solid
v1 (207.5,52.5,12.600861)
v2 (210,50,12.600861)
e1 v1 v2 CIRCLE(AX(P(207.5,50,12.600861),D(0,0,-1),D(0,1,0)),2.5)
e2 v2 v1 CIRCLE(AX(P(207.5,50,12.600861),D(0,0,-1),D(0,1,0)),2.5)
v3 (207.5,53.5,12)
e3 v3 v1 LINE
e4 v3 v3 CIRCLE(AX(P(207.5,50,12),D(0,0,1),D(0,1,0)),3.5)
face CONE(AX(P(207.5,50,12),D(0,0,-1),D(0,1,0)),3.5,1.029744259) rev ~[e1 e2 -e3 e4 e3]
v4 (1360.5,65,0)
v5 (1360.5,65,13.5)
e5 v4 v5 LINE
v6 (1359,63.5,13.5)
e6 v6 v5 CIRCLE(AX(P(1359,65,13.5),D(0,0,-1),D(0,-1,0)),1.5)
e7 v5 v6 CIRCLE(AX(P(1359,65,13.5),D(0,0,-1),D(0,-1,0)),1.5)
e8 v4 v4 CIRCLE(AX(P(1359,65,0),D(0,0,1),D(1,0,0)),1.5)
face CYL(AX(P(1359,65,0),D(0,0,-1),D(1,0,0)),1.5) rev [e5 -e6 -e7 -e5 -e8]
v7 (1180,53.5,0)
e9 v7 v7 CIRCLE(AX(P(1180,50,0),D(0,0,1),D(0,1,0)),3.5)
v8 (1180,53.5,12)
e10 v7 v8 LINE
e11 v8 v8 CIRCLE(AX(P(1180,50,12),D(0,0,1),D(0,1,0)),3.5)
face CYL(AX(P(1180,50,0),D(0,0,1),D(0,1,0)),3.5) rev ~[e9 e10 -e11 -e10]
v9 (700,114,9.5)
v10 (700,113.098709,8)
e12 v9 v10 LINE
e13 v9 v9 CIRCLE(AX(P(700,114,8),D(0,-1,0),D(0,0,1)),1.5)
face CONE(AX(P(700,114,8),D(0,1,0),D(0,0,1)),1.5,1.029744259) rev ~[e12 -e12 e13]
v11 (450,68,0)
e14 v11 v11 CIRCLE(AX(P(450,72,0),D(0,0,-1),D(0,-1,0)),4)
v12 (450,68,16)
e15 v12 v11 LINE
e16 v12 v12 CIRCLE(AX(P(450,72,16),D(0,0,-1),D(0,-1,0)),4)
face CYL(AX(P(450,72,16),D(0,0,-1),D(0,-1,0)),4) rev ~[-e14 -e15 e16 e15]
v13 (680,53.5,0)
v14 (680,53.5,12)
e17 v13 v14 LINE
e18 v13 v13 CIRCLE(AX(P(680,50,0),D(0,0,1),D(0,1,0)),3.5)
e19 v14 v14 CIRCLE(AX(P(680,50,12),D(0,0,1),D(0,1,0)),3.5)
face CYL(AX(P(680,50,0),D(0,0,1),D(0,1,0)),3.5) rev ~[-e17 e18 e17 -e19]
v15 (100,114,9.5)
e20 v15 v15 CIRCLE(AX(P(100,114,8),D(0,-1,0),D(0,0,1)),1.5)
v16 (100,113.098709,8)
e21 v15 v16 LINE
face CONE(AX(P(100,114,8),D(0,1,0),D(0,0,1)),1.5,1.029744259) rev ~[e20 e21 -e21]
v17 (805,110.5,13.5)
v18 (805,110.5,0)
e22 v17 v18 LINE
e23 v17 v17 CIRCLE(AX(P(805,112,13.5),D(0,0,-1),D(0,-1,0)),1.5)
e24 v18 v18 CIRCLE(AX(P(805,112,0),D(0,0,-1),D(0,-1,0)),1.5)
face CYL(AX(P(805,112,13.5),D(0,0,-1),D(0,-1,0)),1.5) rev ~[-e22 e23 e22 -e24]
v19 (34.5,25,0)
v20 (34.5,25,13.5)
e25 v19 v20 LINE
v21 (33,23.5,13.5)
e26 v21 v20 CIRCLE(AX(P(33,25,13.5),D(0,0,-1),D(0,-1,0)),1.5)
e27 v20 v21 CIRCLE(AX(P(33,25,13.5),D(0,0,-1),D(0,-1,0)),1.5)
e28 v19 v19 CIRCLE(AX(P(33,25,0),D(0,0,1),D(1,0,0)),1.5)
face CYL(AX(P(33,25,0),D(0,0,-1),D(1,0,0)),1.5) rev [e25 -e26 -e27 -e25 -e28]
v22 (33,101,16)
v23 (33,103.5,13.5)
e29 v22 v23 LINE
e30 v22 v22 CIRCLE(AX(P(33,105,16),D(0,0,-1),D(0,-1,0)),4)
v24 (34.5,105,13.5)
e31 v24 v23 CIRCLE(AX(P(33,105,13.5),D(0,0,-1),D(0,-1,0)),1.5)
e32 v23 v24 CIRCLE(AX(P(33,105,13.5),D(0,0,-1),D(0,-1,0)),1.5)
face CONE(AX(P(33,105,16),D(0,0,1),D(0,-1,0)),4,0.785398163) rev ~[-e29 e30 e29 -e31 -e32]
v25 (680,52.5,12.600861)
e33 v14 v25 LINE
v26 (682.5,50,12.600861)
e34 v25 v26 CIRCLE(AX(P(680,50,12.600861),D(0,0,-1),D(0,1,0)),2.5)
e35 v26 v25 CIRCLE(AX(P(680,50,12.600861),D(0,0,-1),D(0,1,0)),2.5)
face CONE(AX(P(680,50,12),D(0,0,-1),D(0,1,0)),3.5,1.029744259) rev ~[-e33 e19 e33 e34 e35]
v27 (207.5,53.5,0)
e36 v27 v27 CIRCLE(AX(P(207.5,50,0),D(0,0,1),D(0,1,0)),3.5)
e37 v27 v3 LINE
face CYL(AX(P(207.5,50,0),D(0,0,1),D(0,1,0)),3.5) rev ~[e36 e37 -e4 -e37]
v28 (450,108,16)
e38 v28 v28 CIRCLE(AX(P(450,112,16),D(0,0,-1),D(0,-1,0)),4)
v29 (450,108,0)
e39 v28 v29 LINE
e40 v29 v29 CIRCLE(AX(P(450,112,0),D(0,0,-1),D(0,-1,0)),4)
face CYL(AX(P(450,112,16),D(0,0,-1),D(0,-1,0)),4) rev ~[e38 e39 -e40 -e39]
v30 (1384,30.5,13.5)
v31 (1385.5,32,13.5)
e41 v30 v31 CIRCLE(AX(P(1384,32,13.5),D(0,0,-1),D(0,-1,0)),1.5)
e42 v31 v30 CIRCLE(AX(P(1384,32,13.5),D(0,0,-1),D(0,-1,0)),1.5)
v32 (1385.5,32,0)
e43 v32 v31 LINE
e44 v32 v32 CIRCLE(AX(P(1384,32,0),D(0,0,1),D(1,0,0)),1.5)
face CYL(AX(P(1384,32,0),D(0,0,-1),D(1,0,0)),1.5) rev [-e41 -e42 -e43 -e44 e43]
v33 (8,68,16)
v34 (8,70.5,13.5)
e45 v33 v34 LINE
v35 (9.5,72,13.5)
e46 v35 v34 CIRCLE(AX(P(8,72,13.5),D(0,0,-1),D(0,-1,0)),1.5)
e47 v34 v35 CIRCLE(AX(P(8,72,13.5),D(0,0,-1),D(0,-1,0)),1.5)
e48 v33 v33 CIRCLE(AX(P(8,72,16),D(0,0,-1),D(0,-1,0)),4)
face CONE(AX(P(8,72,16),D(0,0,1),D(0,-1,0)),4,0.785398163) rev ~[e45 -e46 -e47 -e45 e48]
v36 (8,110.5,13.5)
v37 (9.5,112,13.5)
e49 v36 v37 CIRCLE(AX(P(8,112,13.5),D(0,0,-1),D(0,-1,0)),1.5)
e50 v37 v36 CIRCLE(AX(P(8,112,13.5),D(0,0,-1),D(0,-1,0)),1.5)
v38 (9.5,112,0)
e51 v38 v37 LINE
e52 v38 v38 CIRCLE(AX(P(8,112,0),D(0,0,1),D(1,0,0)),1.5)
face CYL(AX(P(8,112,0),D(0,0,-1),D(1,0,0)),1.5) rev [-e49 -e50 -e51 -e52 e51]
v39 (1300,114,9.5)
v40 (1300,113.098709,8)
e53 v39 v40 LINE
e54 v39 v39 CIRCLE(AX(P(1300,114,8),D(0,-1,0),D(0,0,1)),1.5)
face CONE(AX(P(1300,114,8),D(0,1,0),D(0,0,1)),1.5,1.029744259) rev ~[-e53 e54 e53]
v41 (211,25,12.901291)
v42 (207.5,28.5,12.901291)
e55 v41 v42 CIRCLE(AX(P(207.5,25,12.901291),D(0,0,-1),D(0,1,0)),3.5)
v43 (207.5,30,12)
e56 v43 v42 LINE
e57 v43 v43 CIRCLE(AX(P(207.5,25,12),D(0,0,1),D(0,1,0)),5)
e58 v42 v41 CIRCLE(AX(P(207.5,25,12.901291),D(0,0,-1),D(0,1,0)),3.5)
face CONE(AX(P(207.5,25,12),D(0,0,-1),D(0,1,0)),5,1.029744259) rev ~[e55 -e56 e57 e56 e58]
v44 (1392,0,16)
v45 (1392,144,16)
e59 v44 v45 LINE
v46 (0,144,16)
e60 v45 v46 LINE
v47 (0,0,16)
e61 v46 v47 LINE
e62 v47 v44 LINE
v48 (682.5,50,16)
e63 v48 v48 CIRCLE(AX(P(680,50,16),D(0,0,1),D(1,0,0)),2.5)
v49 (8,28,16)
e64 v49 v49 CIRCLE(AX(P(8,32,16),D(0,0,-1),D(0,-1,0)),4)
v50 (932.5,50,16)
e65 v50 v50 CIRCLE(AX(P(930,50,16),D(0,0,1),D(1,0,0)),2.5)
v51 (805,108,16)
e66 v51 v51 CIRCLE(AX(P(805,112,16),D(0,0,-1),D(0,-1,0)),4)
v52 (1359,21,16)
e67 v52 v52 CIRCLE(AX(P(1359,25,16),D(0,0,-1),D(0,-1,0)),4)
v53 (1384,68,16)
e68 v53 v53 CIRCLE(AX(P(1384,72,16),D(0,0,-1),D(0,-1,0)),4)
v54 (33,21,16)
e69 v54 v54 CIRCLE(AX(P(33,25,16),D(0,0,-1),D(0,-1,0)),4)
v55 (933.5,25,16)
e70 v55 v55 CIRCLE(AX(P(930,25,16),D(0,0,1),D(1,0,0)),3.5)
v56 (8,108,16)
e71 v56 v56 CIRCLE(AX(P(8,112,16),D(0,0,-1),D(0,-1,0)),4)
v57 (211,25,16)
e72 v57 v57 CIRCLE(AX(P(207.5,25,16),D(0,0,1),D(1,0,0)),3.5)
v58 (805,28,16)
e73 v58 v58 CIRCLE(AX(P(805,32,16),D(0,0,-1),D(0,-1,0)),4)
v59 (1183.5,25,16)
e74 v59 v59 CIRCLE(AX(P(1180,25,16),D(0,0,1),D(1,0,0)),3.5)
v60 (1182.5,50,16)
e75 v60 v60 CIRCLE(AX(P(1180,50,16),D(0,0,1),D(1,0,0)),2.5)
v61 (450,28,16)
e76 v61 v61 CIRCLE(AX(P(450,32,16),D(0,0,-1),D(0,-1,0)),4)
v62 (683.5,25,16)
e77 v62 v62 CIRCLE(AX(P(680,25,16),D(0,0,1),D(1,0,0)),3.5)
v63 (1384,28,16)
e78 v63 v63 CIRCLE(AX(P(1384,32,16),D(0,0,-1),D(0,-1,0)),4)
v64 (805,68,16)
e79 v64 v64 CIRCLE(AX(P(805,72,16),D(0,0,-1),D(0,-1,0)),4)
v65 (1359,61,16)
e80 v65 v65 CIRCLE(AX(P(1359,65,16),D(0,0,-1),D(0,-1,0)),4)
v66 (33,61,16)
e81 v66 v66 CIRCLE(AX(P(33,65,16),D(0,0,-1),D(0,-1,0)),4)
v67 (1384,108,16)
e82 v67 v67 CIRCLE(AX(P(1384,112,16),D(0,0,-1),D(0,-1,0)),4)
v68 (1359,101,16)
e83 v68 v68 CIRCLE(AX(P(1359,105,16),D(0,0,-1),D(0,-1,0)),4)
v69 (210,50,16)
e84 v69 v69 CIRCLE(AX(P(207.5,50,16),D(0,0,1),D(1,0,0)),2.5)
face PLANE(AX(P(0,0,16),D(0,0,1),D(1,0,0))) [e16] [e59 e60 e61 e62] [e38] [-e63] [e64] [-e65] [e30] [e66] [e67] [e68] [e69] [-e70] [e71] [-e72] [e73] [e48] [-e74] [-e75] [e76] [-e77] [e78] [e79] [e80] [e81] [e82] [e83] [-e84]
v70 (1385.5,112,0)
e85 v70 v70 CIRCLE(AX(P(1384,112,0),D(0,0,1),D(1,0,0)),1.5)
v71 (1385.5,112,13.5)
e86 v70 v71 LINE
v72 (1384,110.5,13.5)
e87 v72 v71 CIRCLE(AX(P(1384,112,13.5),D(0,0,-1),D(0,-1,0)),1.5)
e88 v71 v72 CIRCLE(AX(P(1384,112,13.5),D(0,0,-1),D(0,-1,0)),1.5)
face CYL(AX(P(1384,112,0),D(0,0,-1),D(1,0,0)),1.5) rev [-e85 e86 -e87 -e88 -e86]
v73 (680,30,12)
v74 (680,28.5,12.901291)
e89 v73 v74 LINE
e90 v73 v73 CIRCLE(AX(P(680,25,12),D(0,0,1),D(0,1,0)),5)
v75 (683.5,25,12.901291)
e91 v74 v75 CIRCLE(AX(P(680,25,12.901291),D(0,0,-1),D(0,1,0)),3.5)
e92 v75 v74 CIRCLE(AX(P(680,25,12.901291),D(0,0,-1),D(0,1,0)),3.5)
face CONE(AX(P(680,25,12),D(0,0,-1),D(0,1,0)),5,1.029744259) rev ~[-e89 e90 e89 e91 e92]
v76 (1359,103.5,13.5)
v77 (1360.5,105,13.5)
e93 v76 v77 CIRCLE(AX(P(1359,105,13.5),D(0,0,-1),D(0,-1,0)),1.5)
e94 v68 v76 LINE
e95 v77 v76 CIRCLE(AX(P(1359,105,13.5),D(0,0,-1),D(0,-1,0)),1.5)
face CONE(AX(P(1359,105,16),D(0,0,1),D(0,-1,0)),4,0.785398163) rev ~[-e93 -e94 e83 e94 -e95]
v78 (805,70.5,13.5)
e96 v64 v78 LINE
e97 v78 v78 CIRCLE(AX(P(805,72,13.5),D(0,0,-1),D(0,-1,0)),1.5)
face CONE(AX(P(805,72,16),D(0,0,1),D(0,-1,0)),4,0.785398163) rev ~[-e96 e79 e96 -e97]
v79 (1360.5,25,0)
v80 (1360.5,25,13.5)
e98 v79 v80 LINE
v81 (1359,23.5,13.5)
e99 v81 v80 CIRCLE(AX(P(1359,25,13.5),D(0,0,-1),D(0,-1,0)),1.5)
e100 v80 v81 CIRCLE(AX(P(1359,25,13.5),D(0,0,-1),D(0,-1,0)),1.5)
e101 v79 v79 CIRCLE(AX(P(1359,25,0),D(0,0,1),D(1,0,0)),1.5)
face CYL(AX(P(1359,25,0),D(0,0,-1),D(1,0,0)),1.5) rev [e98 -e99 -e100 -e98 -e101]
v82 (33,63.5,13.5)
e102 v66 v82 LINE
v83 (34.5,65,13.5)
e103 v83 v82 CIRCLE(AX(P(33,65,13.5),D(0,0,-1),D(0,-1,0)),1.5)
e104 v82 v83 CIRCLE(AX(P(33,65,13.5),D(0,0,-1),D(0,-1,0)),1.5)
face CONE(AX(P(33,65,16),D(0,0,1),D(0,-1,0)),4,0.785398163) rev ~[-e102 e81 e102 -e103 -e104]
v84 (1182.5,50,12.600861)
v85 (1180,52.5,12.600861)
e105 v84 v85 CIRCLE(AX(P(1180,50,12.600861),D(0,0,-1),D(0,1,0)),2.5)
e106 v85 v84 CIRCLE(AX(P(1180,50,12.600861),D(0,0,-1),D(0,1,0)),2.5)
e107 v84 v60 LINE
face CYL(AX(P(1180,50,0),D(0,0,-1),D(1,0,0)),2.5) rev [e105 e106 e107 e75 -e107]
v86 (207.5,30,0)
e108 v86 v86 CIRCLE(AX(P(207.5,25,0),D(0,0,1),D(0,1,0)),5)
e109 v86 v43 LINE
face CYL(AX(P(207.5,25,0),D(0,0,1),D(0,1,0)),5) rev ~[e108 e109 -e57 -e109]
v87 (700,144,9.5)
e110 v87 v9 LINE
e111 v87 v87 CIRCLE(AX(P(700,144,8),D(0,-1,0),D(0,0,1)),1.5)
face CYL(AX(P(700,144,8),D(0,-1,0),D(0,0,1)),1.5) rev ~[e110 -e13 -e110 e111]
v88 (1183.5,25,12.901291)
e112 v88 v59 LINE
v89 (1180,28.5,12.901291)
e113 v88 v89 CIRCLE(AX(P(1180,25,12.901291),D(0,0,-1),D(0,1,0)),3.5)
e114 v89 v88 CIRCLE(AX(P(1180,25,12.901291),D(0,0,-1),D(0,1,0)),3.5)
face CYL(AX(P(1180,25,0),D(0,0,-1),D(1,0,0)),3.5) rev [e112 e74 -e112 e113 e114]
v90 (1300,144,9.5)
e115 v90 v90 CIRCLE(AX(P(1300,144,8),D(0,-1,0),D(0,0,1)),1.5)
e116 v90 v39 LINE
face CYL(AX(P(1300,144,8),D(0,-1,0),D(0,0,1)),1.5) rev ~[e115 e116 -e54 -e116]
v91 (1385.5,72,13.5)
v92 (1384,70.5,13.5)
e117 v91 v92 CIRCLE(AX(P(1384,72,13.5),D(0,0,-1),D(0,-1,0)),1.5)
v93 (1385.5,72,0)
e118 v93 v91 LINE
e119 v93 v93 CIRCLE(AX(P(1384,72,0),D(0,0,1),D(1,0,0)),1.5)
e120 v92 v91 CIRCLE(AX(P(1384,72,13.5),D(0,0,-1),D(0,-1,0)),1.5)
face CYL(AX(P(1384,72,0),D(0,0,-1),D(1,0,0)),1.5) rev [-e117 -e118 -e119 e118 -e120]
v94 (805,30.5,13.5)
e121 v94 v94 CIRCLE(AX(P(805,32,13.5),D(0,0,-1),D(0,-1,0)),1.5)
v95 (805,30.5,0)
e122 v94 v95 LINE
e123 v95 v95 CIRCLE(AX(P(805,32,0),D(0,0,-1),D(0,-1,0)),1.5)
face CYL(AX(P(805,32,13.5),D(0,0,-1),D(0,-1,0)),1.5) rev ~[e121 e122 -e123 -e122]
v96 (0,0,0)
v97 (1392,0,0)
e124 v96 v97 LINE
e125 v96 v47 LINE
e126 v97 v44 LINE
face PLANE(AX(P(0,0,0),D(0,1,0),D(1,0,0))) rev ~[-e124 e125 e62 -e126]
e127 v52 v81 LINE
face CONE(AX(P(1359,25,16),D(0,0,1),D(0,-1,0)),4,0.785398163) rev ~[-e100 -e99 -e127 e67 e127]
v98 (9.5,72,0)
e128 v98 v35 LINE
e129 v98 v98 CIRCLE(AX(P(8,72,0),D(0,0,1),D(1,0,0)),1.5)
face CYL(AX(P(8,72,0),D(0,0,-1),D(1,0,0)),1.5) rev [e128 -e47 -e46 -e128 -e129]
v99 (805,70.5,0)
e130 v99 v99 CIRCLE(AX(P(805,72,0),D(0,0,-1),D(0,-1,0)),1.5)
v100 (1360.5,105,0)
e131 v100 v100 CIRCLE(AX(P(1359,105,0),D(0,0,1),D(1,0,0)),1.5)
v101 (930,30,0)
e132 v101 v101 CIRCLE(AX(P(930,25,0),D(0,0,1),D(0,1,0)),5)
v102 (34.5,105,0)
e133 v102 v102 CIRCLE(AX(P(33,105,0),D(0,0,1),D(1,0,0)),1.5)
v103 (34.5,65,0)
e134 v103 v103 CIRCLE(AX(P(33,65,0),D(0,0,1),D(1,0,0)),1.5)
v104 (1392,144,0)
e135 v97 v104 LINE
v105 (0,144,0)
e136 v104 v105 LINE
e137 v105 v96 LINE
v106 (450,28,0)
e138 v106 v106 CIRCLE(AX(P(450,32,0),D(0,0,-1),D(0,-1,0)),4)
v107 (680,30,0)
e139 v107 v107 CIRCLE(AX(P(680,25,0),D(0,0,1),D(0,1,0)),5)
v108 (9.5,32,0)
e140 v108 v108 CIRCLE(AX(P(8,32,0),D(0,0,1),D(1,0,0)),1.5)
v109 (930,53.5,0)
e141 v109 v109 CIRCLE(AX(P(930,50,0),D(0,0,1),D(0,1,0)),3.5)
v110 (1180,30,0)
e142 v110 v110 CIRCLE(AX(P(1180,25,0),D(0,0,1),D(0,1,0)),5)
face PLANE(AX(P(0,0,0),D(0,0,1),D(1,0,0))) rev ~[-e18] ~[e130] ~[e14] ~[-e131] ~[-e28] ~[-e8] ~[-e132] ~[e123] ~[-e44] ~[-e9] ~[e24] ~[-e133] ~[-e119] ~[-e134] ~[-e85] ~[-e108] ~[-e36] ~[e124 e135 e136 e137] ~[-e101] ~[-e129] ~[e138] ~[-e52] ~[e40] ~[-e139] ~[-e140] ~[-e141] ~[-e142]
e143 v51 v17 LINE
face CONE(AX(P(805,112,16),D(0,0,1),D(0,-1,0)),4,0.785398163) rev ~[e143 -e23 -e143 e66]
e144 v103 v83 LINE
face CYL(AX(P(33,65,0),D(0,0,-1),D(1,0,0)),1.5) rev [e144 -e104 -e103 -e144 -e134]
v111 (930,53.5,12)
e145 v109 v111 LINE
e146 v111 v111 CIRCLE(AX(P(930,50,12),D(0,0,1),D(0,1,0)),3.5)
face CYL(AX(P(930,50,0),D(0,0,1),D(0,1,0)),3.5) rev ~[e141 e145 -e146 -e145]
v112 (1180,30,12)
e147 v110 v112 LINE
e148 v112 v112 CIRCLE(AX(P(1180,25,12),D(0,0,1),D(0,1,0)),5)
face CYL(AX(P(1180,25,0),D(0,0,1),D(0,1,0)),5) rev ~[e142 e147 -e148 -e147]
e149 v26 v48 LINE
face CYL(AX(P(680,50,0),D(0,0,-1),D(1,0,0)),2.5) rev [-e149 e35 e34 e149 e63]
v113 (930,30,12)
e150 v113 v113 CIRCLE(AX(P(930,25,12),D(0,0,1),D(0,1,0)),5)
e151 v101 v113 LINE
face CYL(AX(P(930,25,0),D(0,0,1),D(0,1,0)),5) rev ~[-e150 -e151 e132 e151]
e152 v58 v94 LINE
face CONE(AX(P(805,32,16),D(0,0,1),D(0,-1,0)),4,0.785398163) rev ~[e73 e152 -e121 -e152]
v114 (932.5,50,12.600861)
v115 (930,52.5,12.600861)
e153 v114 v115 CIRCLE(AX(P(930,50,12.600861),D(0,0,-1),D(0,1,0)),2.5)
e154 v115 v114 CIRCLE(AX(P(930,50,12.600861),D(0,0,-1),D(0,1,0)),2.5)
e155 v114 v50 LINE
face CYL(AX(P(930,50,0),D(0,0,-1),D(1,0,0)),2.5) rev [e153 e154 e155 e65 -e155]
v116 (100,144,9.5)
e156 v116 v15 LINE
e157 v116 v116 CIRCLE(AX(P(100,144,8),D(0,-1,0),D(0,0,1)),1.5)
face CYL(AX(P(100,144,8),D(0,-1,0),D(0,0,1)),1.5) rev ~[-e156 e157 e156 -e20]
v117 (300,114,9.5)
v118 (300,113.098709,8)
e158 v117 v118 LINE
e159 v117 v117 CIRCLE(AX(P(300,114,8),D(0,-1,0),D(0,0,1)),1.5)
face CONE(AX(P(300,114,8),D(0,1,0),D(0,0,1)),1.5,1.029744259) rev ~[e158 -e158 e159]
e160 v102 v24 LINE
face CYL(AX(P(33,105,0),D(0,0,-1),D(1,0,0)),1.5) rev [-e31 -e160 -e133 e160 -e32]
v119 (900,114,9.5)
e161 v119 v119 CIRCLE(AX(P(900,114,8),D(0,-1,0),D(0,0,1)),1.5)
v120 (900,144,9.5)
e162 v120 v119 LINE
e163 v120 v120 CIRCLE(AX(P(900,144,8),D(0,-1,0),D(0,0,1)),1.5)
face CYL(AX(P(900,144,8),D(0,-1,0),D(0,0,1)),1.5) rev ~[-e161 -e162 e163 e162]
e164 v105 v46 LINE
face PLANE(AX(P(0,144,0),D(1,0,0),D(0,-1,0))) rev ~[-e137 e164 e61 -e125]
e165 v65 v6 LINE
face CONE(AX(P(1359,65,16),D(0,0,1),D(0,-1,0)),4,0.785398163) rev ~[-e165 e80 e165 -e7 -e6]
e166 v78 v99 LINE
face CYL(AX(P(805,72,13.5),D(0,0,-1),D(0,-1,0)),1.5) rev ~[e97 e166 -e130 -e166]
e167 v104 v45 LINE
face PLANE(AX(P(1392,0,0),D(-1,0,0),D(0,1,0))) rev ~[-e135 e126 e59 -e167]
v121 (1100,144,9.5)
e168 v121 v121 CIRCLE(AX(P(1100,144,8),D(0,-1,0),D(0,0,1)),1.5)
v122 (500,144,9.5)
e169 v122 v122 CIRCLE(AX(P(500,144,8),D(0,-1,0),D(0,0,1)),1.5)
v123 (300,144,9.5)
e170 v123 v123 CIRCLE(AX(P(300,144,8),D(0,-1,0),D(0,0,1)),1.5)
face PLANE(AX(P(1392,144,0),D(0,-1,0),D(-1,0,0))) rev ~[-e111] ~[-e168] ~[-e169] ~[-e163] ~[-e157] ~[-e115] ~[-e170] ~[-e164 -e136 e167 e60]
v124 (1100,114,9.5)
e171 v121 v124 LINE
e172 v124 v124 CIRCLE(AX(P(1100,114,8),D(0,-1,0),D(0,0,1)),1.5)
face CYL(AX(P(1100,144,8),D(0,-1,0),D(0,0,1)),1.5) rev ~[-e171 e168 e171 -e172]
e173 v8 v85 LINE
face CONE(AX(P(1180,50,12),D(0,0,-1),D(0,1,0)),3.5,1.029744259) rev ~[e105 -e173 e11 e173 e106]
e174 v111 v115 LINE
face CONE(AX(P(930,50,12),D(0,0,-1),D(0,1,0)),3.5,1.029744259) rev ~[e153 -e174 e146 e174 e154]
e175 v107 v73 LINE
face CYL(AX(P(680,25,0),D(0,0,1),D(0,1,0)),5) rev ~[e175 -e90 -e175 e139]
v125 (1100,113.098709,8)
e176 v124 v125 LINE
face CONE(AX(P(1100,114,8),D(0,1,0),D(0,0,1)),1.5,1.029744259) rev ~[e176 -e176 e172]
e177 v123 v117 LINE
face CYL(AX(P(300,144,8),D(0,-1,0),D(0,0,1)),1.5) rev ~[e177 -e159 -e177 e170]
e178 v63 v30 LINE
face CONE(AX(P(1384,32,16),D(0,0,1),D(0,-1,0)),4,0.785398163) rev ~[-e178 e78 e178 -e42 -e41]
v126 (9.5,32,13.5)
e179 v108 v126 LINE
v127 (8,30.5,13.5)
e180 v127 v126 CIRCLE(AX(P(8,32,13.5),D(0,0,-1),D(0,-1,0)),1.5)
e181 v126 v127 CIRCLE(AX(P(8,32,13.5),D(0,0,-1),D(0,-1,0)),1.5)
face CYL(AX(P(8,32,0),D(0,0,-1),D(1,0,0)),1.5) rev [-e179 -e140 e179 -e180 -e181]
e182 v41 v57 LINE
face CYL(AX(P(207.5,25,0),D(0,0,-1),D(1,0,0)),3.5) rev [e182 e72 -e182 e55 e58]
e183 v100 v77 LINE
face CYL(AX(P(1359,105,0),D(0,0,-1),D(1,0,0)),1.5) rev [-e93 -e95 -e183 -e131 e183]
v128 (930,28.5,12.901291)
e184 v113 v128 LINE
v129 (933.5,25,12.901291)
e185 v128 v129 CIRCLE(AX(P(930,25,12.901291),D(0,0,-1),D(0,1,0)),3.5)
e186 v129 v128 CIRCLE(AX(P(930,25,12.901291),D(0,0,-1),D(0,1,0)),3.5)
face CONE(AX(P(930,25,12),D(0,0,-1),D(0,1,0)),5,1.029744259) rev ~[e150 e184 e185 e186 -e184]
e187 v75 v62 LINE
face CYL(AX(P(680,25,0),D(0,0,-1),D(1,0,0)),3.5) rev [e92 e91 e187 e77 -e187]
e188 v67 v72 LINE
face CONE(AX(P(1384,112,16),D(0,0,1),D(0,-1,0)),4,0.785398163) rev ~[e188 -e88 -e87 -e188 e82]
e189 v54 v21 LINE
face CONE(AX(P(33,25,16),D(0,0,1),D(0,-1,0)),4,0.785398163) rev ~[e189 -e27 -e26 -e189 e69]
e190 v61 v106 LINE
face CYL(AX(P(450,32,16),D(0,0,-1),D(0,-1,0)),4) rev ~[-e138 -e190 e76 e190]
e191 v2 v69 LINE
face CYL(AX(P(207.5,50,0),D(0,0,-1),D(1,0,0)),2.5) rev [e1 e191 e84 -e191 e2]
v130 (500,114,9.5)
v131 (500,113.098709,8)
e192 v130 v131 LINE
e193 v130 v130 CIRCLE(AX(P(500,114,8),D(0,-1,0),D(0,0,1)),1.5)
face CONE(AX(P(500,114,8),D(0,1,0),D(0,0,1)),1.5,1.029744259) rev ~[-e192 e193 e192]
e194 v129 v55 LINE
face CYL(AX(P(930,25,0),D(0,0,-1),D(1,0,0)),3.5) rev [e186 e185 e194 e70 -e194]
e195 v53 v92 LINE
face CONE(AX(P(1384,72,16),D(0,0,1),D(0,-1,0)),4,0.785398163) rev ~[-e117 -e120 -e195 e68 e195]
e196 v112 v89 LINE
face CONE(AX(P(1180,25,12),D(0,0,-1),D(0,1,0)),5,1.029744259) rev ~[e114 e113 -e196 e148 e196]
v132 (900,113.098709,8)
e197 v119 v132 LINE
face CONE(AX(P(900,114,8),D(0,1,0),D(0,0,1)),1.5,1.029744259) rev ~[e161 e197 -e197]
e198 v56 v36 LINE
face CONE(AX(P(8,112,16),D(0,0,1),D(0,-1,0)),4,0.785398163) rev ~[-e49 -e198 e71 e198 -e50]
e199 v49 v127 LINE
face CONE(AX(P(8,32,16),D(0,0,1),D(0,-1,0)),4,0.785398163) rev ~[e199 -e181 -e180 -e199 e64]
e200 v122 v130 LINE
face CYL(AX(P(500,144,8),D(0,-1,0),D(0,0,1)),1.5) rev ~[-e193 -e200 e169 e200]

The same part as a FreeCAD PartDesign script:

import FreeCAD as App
import Part
import Sketcher
Q = App.Units.Quantity


def add_polygon(sketch, points):
    """Adds a closed chain of lines whose ends are joined by coincident constraints."""
    first, n = sketch.GeometryCount, len(points)
    for a, b in zip(points, points[1:] + points[:1]):
        sketch.addGeometry(Part.LineSegment(App.Vector(*a, 0), App.Vector(*b, 0)), False)
    for i in range(n):
        sketch.addConstraint(Sketcher.Constraint("Coincident", first + i, 2, first + (i + 1) % n, 1))

doc = App.newDocument("Part")
body = doc.addObject("PartDesign::Body", "Body")

# Sketch on XY plane
sketch1 = doc.addObject("Sketcher::SketchObject", "Sketch")
body.addObject(sketch1)
sketch1.AttachmentSupport = (doc.XY_Plane, [""])
sketch1.MapMode = "FlatFace"
add_polygon(sketch1, [(0, 144), (0, 0), (1392, 0), (1392, 144)])  # lines 0-3
sketch1.addGeometry(Part.Circle(App.Vector(33, 25, 0), App.Vector(0, 0, 1), 1.5), False)  # 4
sketch1.addGeometry(Part.Circle(App.Vector(8, 32, 0), App.Vector(0, 0, 1), 1.5), False)  # 5
sketch1.addGeometry(Part.Circle(App.Vector(207.5, 25, 0), App.Vector(0, 0, 1), 3.5), False)  # 6
sketch1.addGeometry(Part.Circle(App.Vector(680, 25, 0), App.Vector(0, 0, 1), 3.5), False)  # 7
sketch1.addGeometry(Part.Circle(App.Vector(207.5, 50, 0), App.Vector(0, 0, 1), 2.5), False)  # 8
sketch1.addGeometry(Part.Circle(App.Vector(33, 65, 0), App.Vector(0, 0, 1), 1.5), False)  # 9
sketch1.addGeometry(Part.Circle(App.Vector(680, 50, 0), App.Vector(0, 0, 1), 2.5), False)  # 10
sketch1.addGeometry(Part.Circle(App.Vector(930, 25, 0), App.Vector(0, 0, 1), 3.5), False)  # 11
sketch1.addGeometry(Part.Circle(App.Vector(1180, 25, 0), App.Vector(0, 0, 1), 3.5), False)  # 12
sketch1.addGeometry(Part.Circle(App.Vector(1359, 25, 0), App.Vector(0, 0, 1), 1.5), False)  # 13
sketch1.addGeometry(Part.Circle(App.Vector(1384, 32, 0), App.Vector(0, 0, 1), 1.5), False)  # 14
sketch1.addGeometry(Part.Circle(App.Vector(930, 50, 0), App.Vector(0, 0, 1), 2.5), False)  # 15
sketch1.addGeometry(Part.Circle(App.Vector(1180, 50, 0), App.Vector(0, 0, 1), 2.5), False)  # 16
sketch1.addGeometry(Part.Circle(App.Vector(1359, 65, 0), App.Vector(0, 0, 1), 1.5), False)  # 17
sketch1.addGeometry(Part.Circle(App.Vector(8, 72, 0), App.Vector(0, 0, 1), 1.5), False)  # 18
sketch1.addGeometry(Part.Circle(App.Vector(33, 105, 0), App.Vector(0, 0, 1), 1.5), False)  # 19
sketch1.addGeometry(Part.Circle(App.Vector(8, 112, 0), App.Vector(0, 0, 1), 1.5), False)  # 20
sketch1.addGeometry(Part.Circle(App.Vector(1384, 72, 0), App.Vector(0, 0, 1), 1.5), False)  # 21
sketch1.addGeometry(Part.Circle(App.Vector(1359, 105, 0), App.Vector(0, 0, 1), 1.5), False)  # 22
sketch1.addGeometry(Part.Circle(App.Vector(1384, 112, 0), App.Vector(0, 0, 1), 1.5), False)  # 23
sketch1.addConstraint(Sketcher.Constraint("Vertical", 0))
sketch1.addConstraint(Sketcher.Constraint("Horizontal", 1))
sketch1.addConstraint(Sketcher.Constraint("Vertical", 2))
sketch1.addConstraint(Sketcher.Constraint("Horizontal", 3))
sketch1.addConstraint(Sketcher.Constraint("Coincident", 0, 2, -1, 1))
sketch1.addConstraint(Sketcher.Constraint("Equal", 4, 5))
sketch1.addConstraint(Sketcher.Constraint("Equal", 6, 7))
sketch1.addConstraint(Sketcher.Constraint("Equal", 5, 9))
sketch1.addConstraint(Sketcher.Constraint("Equal", 8, 10))
sketch1.addConstraint(Sketcher.Constraint("Equal", 7, 11))
sketch1.addConstraint(Sketcher.Constraint("Equal", 11, 12))
sketch1.addConstraint(Sketcher.Constraint("Equal", 9, 13))
sketch1.addConstraint(Sketcher.Constraint("Equal", 13, 14))
sketch1.addConstraint(Sketcher.Constraint("Equal", 10, 15))
sketch1.addConstraint(Sketcher.Constraint("Equal", 15, 16))
sketch1.addConstraint(Sketcher.Constraint("Equal", 14, 17))
sketch1.addConstraint(Sketcher.Constraint("Equal", 17, 18))
sketch1.addConstraint(Sketcher.Constraint("Equal", 18, 19))
sketch1.addConstraint(Sketcher.Constraint("Equal", 19, 20))
sketch1.addConstraint(Sketcher.Constraint("Equal", 20, 21))
sketch1.addConstraint(Sketcher.Constraint("Equal", 21, 22))
sketch1.addConstraint(Sketcher.Constraint("Equal", 22, 23))
sketch1.addConstraint(Sketcher.Constraint("Horizontal", 4, 3, 6, 3))
sketch1.addConstraint(Sketcher.Constraint("Horizontal", 6, 3, 7, 3))
sketch1.addConstraint(Sketcher.Constraint("Horizontal", 8, 3, 10, 3))
sketch1.addConstraint(Sketcher.Constraint("Horizontal", 7, 3, 11, 3))
sketch1.addConstraint(Sketcher.Constraint("Horizontal", 11, 3, 12, 3))
sketch1.addConstraint(Sketcher.Constraint("Horizontal", 12, 3, 13, 3))
sketch1.addConstraint(Sketcher.Constraint("Horizontal", 5, 3, 14, 3))
sketch1.addConstraint(Sketcher.Constraint("Horizontal", 10, 3, 15, 3))
sketch1.addConstraint(Sketcher.Constraint("Horizontal", 15, 3, 16, 3))
sketch1.addConstraint(Sketcher.Constraint("Horizontal", 9, 3, 17, 3))
sketch1.addConstraint(Sketcher.Constraint("Horizontal", 18, 3, 21, 3))
sketch1.addConstraint(Sketcher.Constraint("Horizontal", 19, 3, 22, 3))
sketch1.addConstraint(Sketcher.Constraint("Horizontal", 20, 3, 23, 3))
sketch1.addConstraint(Sketcher.Constraint("Vertical", 6, 3, 8, 3))
sketch1.addConstraint(Sketcher.Constraint("Vertical", 4, 3, 9, 3))
sketch1.addConstraint(Sketcher.Constraint("Vertical", 7, 3, 10, 3))
sketch1.addConstraint(Sketcher.Constraint("Vertical", 11, 3, 15, 3))
sketch1.addConstraint(Sketcher.Constraint("Vertical", 12, 3, 16, 3))
sketch1.addConstraint(Sketcher.Constraint("Vertical", 13, 3, 17, 3))
sketch1.addConstraint(Sketcher.Constraint("Vertical", 5, 3, 18, 3))
sketch1.addConstraint(Sketcher.Constraint("Vertical", 9, 3, 19, 3))
sketch1.addConstraint(Sketcher.Constraint("Vertical", 18, 3, 20, 3))
sketch1.addConstraint(Sketcher.Constraint("Vertical", 14, 3, 21, 3))
sketch1.addConstraint(Sketcher.Constraint("Vertical", 17, 3, 22, 3))
sketch1.addConstraint(Sketcher.Constraint("Vertical", 21, 3, 23, 3))
sketch1.addConstraint(Sketcher.Constraint("Diameter", 4, Q("3 mm")))
sketch1.addConstraint(Sketcher.Constraint("Diameter", 6, Q("7 mm")))
sketch1.addConstraint(Sketcher.Constraint("Diameter", 8, Q("5 mm")))
sketch1.addConstraint(Sketcher.Constraint("DistanceX", 1, 1, 1, 2, Q("1392 mm")))
sketch1.addConstraint(Sketcher.Constraint("DistanceY", 0, 2, 0, 1, Q("144 mm")))
sketch1.addConstraint(Sketcher.Constraint("DistanceX", -1, 1, 4, 3, Q("33 mm")))
sketch1.addConstraint(Sketcher.Constraint("DistanceY", -1, 1, 4, 3, Q("25 mm")))
sketch1.addConstraint(Sketcher.Constraint("DistanceX", -1, 1, 5, 3, Q("8 mm")))
sketch1.addConstraint(Sketcher.Constraint("DistanceX", -1, 1, 7, 3, Q("680 mm")))
sketch1.addConstraint(Sketcher.Constraint("DistanceY", -1, 1, 8, 3, Q("50 mm")))
sketch1.addConstraint(Sketcher.Constraint("DistanceY", 4, 3, 5, 3, Q("7 mm")))
sketch1.addConstraint(Sketcher.Constraint("DistanceY", 4, 3, 9, 3, Q("40 mm")))
sketch1.addConstraint(Sketcher.Constraint("DistanceX", 7, 3, 11, 3, Q("250 mm")))
sketch1.addConstraint(Sketcher.Constraint("DistanceX", 11, 3, 12, 3, Q("250 mm")))
sketch1.addConstraint(Sketcher.Constraint("DistanceX", 13, 3, 14, 3, Q("25 mm")))
sketch1.addConstraint(Sketcher.Constraint("DistanceY", 9, 3, 18, 3, Q("7 mm")))
sketch1.addConstraint(Sketcher.Constraint("DistanceY", 9, 3, 19, 3, Q("40 mm")))
sketch1.addConstraint(Sketcher.Constraint("DistanceY", 19, 3, 20, 3, Q("7 mm")))
sketch1.addConstraint(Sketcher.Constraint("DistanceX", 14, 3, 1, 2, Q("8 mm")))
sketch1.addConstraint(Sketcher.Constraint("DistanceX", -1, 1, 6, 3, Q("207.5 mm")))
pad1 = doc.addObject("PartDesign::Pad", "Pad")
body.addObject(pad1)
pad1.Profile = sketch1
pad1.Length = 16

# Sketch on XY plane
sketch2 = doc.addObject("Sketcher::SketchObject", "Sketch001")
body.addObject(sketch2)
sketch2.AttachmentSupport = (doc.XY_Plane, [""])
sketch2.MapMode = "FlatFace"
sketch2.addGeometry(Part.Circle(App.Vector(1180, 25, 0), App.Vector(0, 0, 1), 5), False)
sketch2.addGeometry(Part.Circle(App.Vector(930, 25, 0), App.Vector(0, 0, 1), 5), False)
sketch2.addGeometry(Part.Circle(App.Vector(680, 25, 0), App.Vector(0, 0, 1), 5), False)
sketch2.addGeometry(Part.Circle(App.Vector(208, 25, 0), App.Vector(0, 0, 1), 5), False)
sketch2.addConstraint(Sketcher.Constraint("Equal", 0, 1))
sketch2.addConstraint(Sketcher.Constraint("Equal", 1, 2))
sketch2.addConstraint(Sketcher.Constraint("Equal", 2, 3))
sketch2.addConstraint(Sketcher.Constraint("Horizontal", 0, 3, 1, 3))
sketch2.addConstraint(Sketcher.Constraint("Horizontal", 1, 3, 2, 3))
sketch2.addConstraint(Sketcher.Constraint("Horizontal", 2, 3, 3, 3))
sketch2.addConstraint(Sketcher.Constraint("Diameter", 0, Q("10 mm")))
sketch2.addConstraint(Sketcher.Constraint("DistanceX", -1, 1, 0, 3, Q("1180 mm")))
sketch2.addConstraint(Sketcher.Constraint("DistanceY", -1, 1, 0, 3, Q("25 mm")))
sketch2.addConstraint(Sketcher.Constraint("DistanceX", -1, 1, 1, 3, Q("930 mm")))
sketch2.addConstraint(Sketcher.Constraint("DistanceX", -1, 1, 2, 3, Q("680 mm")))
sketch2.addConstraint(Sketcher.Constraint("DistanceX", -1, 1, 3, 3, Q("207.5 mm")))
doc.recompute()
hole = doc.addObject("PartDesign::Hole", "Hole")
body.addObject(hole)
hole.Profile = sketch2
hole.ThreadType = "None"
hole.Diameter = 10
hole.DepthType = "Dimension"
hole.Depth = 12
hole.DrillPoint = "Angled"
hole.DrillPointAngle = 118
hole.Reversed = True

# Sketch on XY plane
sketch3 = doc.addObject("Sketcher::SketchObject", "Sketch002")
body.addObject(sketch3)
sketch3.AttachmentSupport = (doc.XY_Plane, [""])
sketch3.MapMode = "FlatFace"
sketch3.addGeometry(Part.Circle(App.Vector(930, 50, 0), App.Vector(0, 0, 1), 3.5), False)
sketch3.addGeometry(Part.Circle(App.Vector(680, 50, 0), App.Vector(0, 0, 1), 3.5), False)
sketch3.addGeometry(Part.Circle(App.Vector(207.5, 50, 0), App.Vector(0, 0, 1), 3.5), False)
sketch3.addGeometry(Part.Circle(App.Vector(1180, 50, 0), App.Vector(0, 0, 1), 3.5), False)
sketch3.addConstraint(Sketcher.Constraint("Equal", 0, 1))
sketch3.addConstraint(Sketcher.Constraint("Equal", 1, 2))
sketch3.addConstraint(Sketcher.Constraint("Equal", 2, 3))
sketch3.addConstraint(Sketcher.Constraint("Horizontal", 0, 3, 1, 3))
sketch3.addConstraint(Sketcher.Constraint("Horizontal", 1, 3, 2, 3))
sketch3.addConstraint(Sketcher.Constraint("Horizontal", 2, 3, 3, 3))
sketch3.addConstraint(Sketcher.Constraint("Diameter", 0, Q("7 mm")))
sketch3.addConstraint(Sketcher.Constraint("DistanceX", -1, 1, 0, 3, Q("930 mm")))
sketch3.addConstraint(Sketcher.Constraint("DistanceY", -1, 1, 0, 3, Q("50 mm")))
sketch3.addConstraint(Sketcher.Constraint("DistanceX", -1, 1, 1, 3, Q("680 mm")))
sketch3.addConstraint(Sketcher.Constraint("DistanceX", -1, 1, 3, 3, Q("1180 mm")))
sketch3.addConstraint(Sketcher.Constraint("DistanceX", -1, 1, 2, 3, Q("207.5 mm")))
doc.recompute()
hole2 = doc.addObject("PartDesign::Hole", "Hole001")
body.addObject(hole2)
hole2.Profile = sketch3
hole2.ThreadType = "None"
hole2.Diameter = 7
hole2.DepthType = "Dimension"
hole2.Depth = 12
hole2.DrillPoint = "Angled"
hole2.DrillPointAngle = 118
hole2.Reversed = True

# Sketch on XY plane
sketch4 = doc.addObject("Sketcher::SketchObject", "Sketch003")
body.addObject(sketch4)
sketch4.AttachmentSupport = (doc.XY_Plane, [""])
sketch4.MapMode = "FlatFace"
sketch4.AttachmentOffset = App.Placement(App.Vector(0, 0, 16), App.Rotation())
sketch4.addGeometry(Part.Circle(App.Vector(1359, 65, 0), App.Vector(0, 0, 1), 1.5), False)
sketch4.addGeometry(Part.Circle(App.Vector(1384, 32, 0), App.Vector(0, 0, 1), 1.5), False)
sketch4.addGeometry(Part.Circle(App.Vector(1384, 72, 0), App.Vector(0, 0, 1), 1.5), False)
sketch4.addGeometry(Part.Circle(App.Vector(1384, 112, 0), App.Vector(0, 0, 1), 1.5), False)
sketch4.addGeometry(Part.Circle(App.Vector(1359, 105, 0), App.Vector(0, 0, 1), 1.5), False)
sketch4.addGeometry(Part.Circle(App.Vector(1359, 25, 0), App.Vector(0, 0, 1), 1.5), False)
sketch4.addGeometry(Part.Circle(App.Vector(33, 65, 0), App.Vector(0, 0, 1), 1.5), False)
sketch4.addGeometry(Part.Circle(App.Vector(33, 25, 0), App.Vector(0, 0, 1), 1.5), False)
sketch4.addGeometry(Part.Circle(App.Vector(33, 105, 0), App.Vector(0, 0, 1), 1.5), False)
sketch4.addGeometry(Part.Circle(App.Vector(8, 72, 0), App.Vector(0, 0, 1), 1.5), False)
sketch4.addGeometry(Part.Circle(App.Vector(8, 112, 0), App.Vector(0, 0, 1), 1.5), False)
sketch4.addGeometry(Part.Circle(App.Vector(8, 32, 0), App.Vector(0, 0, 1), 1.5), False)
sketch4.addConstraint(Sketcher.Constraint("Equal", 0, 1))
sketch4.addConstraint(Sketcher.Constraint("Equal", 1, 2))
sketch4.addConstraint(Sketcher.Constraint("Equal", 2, 3))
sketch4.addConstraint(Sketcher.Constraint("Equal", 3, 4))
sketch4.addConstraint(Sketcher.Constraint("Equal", 4, 5))
sketch4.addConstraint(Sketcher.Constraint("Equal", 5, 6))
sketch4.addConstraint(Sketcher.Constraint("Equal", 6, 7))
sketch4.addConstraint(Sketcher.Constraint("Equal", 7, 8))
sketch4.addConstraint(Sketcher.Constraint("Equal", 8, 9))
sketch4.addConstraint(Sketcher.Constraint("Equal", 9, 10))
sketch4.addConstraint(Sketcher.Constraint("Equal", 10, 11))
sketch4.addConstraint(Sketcher.Constraint("Horizontal", 0, 3, 6, 3))
sketch4.addConstraint(Sketcher.Constraint("Horizontal", 5, 3, 7, 3))
sketch4.addConstraint(Sketcher.Constraint("Horizontal", 4, 3, 8, 3))
sketch4.addConstraint(Sketcher.Constraint("Horizontal", 2, 3, 9, 3))
sketch4.addConstraint(Sketcher.Constraint("Horizontal", 3, 3, 10, 3))
sketch4.addConstraint(Sketcher.Constraint("Horizontal", 1, 3, 11, 3))
sketch4.addConstraint(Sketcher.Constraint("Vertical", 1, 3, 2, 3))
sketch4.addConstraint(Sketcher.Constraint("Vertical", 2, 3, 3, 3))
sketch4.addConstraint(Sketcher.Constraint("Vertical", 0, 3, 4, 3))
sketch4.addConstraint(Sketcher.Constraint("Vertical", 4, 3, 5, 3))
sketch4.addConstraint(Sketcher.Constraint("Vertical", 6, 3, 7, 3))
sketch4.addConstraint(Sketcher.Constraint("Vertical", 7, 3, 8, 3))
sketch4.addConstraint(Sketcher.Constraint("Vertical", 9, 3, 10, 3))
sketch4.addConstraint(Sketcher.Constraint("Vertical", 10, 3, 11, 3))
sketch4.addConstraint(Sketcher.Constraint("Diameter", 0, Q("3 mm")))
sketch4.addConstraint(Sketcher.Constraint("DistanceX", -1, 1, 0, 3, Q("1359 mm")))
sketch4.addConstraint(Sketcher.Constraint("DistanceY", -1, 1, 0, 3, Q("65 mm")))
sketch4.addConstraint(Sketcher.Constraint("DistanceX", -1, 1, 1, 3, Q("1384 mm")))
sketch4.addConstraint(Sketcher.Constraint("DistanceY", -1, 1, 1, 3, Q("32 mm")))
sketch4.addConstraint(Sketcher.Constraint("DistanceY", -1, 1, 2, 3, Q("72 mm")))
sketch4.addConstraint(Sketcher.Constraint("DistanceY", -1, 1, 3, 3, Q("112 mm")))
sketch4.addConstraint(Sketcher.Constraint("DistanceY", -1, 1, 4, 3, Q("105 mm")))
sketch4.addConstraint(Sketcher.Constraint("DistanceY", -1, 1, 5, 3, Q("25 mm")))
sketch4.addConstraint(Sketcher.Constraint("DistanceX", -1, 1, 6, 3, Q("33 mm")))
sketch4.addConstraint(Sketcher.Constraint("DistanceX", -1, 1, 9, 3, Q("8 mm")))
doc.recompute()
hole3 = doc.addObject("PartDesign::Hole", "Hole002")
body.addObject(hole3)
hole3.Profile = sketch4
hole3.ThreadType = "None"
hole3.Diameter = 3
hole3.DepthType = "Dimension"
hole3.Depth = 8
hole3.DrillPoint = "Angled"
hole3.DrillPointAngle = 118
hole3.HoleCutType = "Countersink"
hole3.HoleCutDiameter = 8
hole3.HoleCutCountersinkAngle = 90

# Sketch on XZ plane
sketch5 = doc.addObject("Sketcher::SketchObject", "Sketch004")
body.addObject(sketch5)
sketch5.AttachmentSupport = (doc.XZ_Plane, [""])
sketch5.MapMode = "FlatFace"
sketch5.AttachmentOffset = App.Placement(App.Vector(0, 0, -144), App.Rotation())
sketch5.addGeometry(Part.Circle(App.Vector(1300, 8, 0), App.Vector(0, 0, 1), 1.5), False)
sketch5.addGeometry(Part.Circle(App.Vector(1100, 8, 0), App.Vector(0, 0, 1), 1.5), False)
sketch5.addGeometry(Part.Circle(App.Vector(900, 8, 0), App.Vector(0, 0, 1), 1.5), False)
sketch5.addGeometry(Part.Circle(App.Vector(500, 8, 0), App.Vector(0, 0, 1), 1.5), False)
sketch5.addGeometry(Part.Circle(App.Vector(300, 8, 0), App.Vector(0, 0, 1), 1.5), False)
sketch5.addGeometry(Part.Circle(App.Vector(100, 8, 0), App.Vector(0, 0, 1), 1.5), False)
sketch5.addGeometry(Part.Circle(App.Vector(700, 8, 0), App.Vector(0, 0, 1), 1.5), False)
sketch5.addConstraint(Sketcher.Constraint("Equal", 0, 1))
sketch5.addConstraint(Sketcher.Constraint("Equal", 1, 2))
sketch5.addConstraint(Sketcher.Constraint("Equal", 2, 3))
sketch5.addConstraint(Sketcher.Constraint("Equal", 3, 4))
sketch5.addConstraint(Sketcher.Constraint("Equal", 4, 5))
sketch5.addConstraint(Sketcher.Constraint("Equal", 5, 6))
sketch5.addConstraint(Sketcher.Constraint("Horizontal", 0, 3, 1, 3))
sketch5.addConstraint(Sketcher.Constraint("Horizontal", 1, 3, 2, 3))
sketch5.addConstraint(Sketcher.Constraint("Horizontal", 2, 3, 3, 3))
sketch5.addConstraint(Sketcher.Constraint("Horizontal", 3, 3, 4, 3))
sketch5.addConstraint(Sketcher.Constraint("Horizontal", 4, 3, 5, 3))
sketch5.addConstraint(Sketcher.Constraint("Horizontal", 5, 3, 6, 3))
sketch5.addConstraint(Sketcher.Constraint("Diameter", 0, Q("3 mm")))
sketch5.addConstraint(Sketcher.Constraint("DistanceX", -1, 1, 0, 3, Q("1300 mm")))
sketch5.addConstraint(Sketcher.Constraint("DistanceY", -1, 1, 0, 3, Q("8 mm")))
sketch5.addConstraint(Sketcher.Constraint("DistanceX", -1, 1, 1, 3, Q("1100 mm")))
sketch5.addConstraint(Sketcher.Constraint("DistanceX", -1, 1, 2, 3, Q("900 mm")))
sketch5.addConstraint(Sketcher.Constraint("DistanceX", -1, 1, 3, 3, Q("500 mm")))
sketch5.addConstraint(Sketcher.Constraint("DistanceX", -1, 1, 4, 3, Q("300 mm")))
sketch5.addConstraint(Sketcher.Constraint("DistanceX", -1, 1, 5, 3, Q("100 mm")))
sketch5.addConstraint(Sketcher.Constraint("DistanceX", -1, 1, 6, 3, Q("700 mm")))
doc.recompute()
hole4 = doc.addObject("PartDesign::Hole", "Hole003")
body.addObject(hole4)
hole4.Profile = sketch5
hole4.ThreadType = "None"
hole4.Diameter = 3
hole4.DepthType = "Dimension"
hole4.Depth = 30
hole4.DrillPoint = "Angled"
hole4.DrillPointAngle = 118
hole4.Reversed = True

# Sketch on XY plane
sketch6 = doc.addObject("Sketcher::SketchObject", "Sketch005")
body.addObject(sketch6)
sketch6.AttachmentSupport = (doc.XY_Plane, [""])
sketch6.MapMode = "FlatFace"
sketch6.AttachmentOffset = App.Placement(App.Vector(0, 0, 16), App.Rotation())
sketch6.addGeometry(Part.Circle(App.Vector(805, 32, 0), App.Vector(0, 0, 1), 1.5), False)
sketch6.addGeometry(Part.Circle(App.Vector(805, 72, 0), App.Vector(0, 0, 1), 1.5), False)
sketch6.addGeometry(Part.Circle(App.Vector(805, 112, 0), App.Vector(0, 0, 1), 1.5), False)
sketch6.addConstraint(Sketcher.Constraint("Equal", 0, 1))
sketch6.addConstraint(Sketcher.Constraint("Equal", 1, 2))
sketch6.addConstraint(Sketcher.Constraint("Vertical", 0, 3, 1, 3))
sketch6.addConstraint(Sketcher.Constraint("Vertical", 1, 3, 2, 3))
sketch6.addConstraint(Sketcher.Constraint("Diameter", 0, Q("3 mm")))
sketch6.addConstraint(Sketcher.Constraint("DistanceX", -1, 1, 0, 3, Q("805 mm")))
sketch6.addConstraint(Sketcher.Constraint("DistanceY", -1, 1, 0, 3, Q("32 mm")))
sketch6.addConstraint(Sketcher.Constraint("DistanceY", -1, 1, 1, 3, Q("72 mm")))
sketch6.addConstraint(Sketcher.Constraint("DistanceY", -1, 1, 2, 3, Q("112 mm")))
doc.recompute()
hole5 = doc.addObject("PartDesign::Hole", "Hole004")
body.addObject(hole5)
hole5.Profile = sketch6
hole5.ThreadType = "None"
hole5.Diameter = 3
hole5.DepthType = "ThroughAll"
hole5.HoleCutType = "Countersink"
hole5.HoleCutDiameter = 8
hole5.HoleCutCountersinkAngle = 90

# Sketch on XY plane
sketch7 = doc.addObject("Sketcher::SketchObject", "Sketch006")
body.addObject(sketch7)
sketch7.AttachmentSupport = (doc.XY_Plane, [""])
sketch7.MapMode = "FlatFace"
sketch7.AttachmentOffset = App.Placement(App.Vector(0, 0, 16), App.Rotation())
sketch7.addGeometry(Part.Circle(App.Vector(450, 72, 0), App.Vector(0, 0, 1), 4), False)
sketch7.addGeometry(Part.Circle(App.Vector(450, 112, 0), App.Vector(0, 0, 1), 4), False)
sketch7.addGeometry(Part.Circle(App.Vector(450, 32, 0), App.Vector(0, 0, 1), 4), False)
sketch7.addConstraint(Sketcher.Constraint("Equal", 0, 1))
sketch7.addConstraint(Sketcher.Constraint("Equal", 1, 2))
sketch7.addConstraint(Sketcher.Constraint("Vertical", 0, 3, 1, 3))
sketch7.addConstraint(Sketcher.Constraint("Vertical", 1, 3, 2, 3))
sketch7.addConstraint(Sketcher.Constraint("Diameter", 0, Q("8 mm")))
sketch7.addConstraint(Sketcher.Constraint("DistanceX", -1, 1, 0, 3, Q("450 mm")))
sketch7.addConstraint(Sketcher.Constraint("DistanceY", -1, 1, 0, 3, Q("72 mm")))
sketch7.addConstraint(Sketcher.Constraint("DistanceY", -1, 1, 1, 3, Q("112 mm")))
sketch7.addConstraint(Sketcher.Constraint("DistanceY", -1, 1, 2, 3, Q("32 mm")))
doc.recompute()
hole6 = doc.addObject("PartDesign::Hole", "Hole005")
body.addObject(hole6)
hole6.Profile = sketch7
hole6.ThreadType = "None"
hole6.Diameter = 8
hole6.DepthType = "ThroughAll"

doc.recompute()
